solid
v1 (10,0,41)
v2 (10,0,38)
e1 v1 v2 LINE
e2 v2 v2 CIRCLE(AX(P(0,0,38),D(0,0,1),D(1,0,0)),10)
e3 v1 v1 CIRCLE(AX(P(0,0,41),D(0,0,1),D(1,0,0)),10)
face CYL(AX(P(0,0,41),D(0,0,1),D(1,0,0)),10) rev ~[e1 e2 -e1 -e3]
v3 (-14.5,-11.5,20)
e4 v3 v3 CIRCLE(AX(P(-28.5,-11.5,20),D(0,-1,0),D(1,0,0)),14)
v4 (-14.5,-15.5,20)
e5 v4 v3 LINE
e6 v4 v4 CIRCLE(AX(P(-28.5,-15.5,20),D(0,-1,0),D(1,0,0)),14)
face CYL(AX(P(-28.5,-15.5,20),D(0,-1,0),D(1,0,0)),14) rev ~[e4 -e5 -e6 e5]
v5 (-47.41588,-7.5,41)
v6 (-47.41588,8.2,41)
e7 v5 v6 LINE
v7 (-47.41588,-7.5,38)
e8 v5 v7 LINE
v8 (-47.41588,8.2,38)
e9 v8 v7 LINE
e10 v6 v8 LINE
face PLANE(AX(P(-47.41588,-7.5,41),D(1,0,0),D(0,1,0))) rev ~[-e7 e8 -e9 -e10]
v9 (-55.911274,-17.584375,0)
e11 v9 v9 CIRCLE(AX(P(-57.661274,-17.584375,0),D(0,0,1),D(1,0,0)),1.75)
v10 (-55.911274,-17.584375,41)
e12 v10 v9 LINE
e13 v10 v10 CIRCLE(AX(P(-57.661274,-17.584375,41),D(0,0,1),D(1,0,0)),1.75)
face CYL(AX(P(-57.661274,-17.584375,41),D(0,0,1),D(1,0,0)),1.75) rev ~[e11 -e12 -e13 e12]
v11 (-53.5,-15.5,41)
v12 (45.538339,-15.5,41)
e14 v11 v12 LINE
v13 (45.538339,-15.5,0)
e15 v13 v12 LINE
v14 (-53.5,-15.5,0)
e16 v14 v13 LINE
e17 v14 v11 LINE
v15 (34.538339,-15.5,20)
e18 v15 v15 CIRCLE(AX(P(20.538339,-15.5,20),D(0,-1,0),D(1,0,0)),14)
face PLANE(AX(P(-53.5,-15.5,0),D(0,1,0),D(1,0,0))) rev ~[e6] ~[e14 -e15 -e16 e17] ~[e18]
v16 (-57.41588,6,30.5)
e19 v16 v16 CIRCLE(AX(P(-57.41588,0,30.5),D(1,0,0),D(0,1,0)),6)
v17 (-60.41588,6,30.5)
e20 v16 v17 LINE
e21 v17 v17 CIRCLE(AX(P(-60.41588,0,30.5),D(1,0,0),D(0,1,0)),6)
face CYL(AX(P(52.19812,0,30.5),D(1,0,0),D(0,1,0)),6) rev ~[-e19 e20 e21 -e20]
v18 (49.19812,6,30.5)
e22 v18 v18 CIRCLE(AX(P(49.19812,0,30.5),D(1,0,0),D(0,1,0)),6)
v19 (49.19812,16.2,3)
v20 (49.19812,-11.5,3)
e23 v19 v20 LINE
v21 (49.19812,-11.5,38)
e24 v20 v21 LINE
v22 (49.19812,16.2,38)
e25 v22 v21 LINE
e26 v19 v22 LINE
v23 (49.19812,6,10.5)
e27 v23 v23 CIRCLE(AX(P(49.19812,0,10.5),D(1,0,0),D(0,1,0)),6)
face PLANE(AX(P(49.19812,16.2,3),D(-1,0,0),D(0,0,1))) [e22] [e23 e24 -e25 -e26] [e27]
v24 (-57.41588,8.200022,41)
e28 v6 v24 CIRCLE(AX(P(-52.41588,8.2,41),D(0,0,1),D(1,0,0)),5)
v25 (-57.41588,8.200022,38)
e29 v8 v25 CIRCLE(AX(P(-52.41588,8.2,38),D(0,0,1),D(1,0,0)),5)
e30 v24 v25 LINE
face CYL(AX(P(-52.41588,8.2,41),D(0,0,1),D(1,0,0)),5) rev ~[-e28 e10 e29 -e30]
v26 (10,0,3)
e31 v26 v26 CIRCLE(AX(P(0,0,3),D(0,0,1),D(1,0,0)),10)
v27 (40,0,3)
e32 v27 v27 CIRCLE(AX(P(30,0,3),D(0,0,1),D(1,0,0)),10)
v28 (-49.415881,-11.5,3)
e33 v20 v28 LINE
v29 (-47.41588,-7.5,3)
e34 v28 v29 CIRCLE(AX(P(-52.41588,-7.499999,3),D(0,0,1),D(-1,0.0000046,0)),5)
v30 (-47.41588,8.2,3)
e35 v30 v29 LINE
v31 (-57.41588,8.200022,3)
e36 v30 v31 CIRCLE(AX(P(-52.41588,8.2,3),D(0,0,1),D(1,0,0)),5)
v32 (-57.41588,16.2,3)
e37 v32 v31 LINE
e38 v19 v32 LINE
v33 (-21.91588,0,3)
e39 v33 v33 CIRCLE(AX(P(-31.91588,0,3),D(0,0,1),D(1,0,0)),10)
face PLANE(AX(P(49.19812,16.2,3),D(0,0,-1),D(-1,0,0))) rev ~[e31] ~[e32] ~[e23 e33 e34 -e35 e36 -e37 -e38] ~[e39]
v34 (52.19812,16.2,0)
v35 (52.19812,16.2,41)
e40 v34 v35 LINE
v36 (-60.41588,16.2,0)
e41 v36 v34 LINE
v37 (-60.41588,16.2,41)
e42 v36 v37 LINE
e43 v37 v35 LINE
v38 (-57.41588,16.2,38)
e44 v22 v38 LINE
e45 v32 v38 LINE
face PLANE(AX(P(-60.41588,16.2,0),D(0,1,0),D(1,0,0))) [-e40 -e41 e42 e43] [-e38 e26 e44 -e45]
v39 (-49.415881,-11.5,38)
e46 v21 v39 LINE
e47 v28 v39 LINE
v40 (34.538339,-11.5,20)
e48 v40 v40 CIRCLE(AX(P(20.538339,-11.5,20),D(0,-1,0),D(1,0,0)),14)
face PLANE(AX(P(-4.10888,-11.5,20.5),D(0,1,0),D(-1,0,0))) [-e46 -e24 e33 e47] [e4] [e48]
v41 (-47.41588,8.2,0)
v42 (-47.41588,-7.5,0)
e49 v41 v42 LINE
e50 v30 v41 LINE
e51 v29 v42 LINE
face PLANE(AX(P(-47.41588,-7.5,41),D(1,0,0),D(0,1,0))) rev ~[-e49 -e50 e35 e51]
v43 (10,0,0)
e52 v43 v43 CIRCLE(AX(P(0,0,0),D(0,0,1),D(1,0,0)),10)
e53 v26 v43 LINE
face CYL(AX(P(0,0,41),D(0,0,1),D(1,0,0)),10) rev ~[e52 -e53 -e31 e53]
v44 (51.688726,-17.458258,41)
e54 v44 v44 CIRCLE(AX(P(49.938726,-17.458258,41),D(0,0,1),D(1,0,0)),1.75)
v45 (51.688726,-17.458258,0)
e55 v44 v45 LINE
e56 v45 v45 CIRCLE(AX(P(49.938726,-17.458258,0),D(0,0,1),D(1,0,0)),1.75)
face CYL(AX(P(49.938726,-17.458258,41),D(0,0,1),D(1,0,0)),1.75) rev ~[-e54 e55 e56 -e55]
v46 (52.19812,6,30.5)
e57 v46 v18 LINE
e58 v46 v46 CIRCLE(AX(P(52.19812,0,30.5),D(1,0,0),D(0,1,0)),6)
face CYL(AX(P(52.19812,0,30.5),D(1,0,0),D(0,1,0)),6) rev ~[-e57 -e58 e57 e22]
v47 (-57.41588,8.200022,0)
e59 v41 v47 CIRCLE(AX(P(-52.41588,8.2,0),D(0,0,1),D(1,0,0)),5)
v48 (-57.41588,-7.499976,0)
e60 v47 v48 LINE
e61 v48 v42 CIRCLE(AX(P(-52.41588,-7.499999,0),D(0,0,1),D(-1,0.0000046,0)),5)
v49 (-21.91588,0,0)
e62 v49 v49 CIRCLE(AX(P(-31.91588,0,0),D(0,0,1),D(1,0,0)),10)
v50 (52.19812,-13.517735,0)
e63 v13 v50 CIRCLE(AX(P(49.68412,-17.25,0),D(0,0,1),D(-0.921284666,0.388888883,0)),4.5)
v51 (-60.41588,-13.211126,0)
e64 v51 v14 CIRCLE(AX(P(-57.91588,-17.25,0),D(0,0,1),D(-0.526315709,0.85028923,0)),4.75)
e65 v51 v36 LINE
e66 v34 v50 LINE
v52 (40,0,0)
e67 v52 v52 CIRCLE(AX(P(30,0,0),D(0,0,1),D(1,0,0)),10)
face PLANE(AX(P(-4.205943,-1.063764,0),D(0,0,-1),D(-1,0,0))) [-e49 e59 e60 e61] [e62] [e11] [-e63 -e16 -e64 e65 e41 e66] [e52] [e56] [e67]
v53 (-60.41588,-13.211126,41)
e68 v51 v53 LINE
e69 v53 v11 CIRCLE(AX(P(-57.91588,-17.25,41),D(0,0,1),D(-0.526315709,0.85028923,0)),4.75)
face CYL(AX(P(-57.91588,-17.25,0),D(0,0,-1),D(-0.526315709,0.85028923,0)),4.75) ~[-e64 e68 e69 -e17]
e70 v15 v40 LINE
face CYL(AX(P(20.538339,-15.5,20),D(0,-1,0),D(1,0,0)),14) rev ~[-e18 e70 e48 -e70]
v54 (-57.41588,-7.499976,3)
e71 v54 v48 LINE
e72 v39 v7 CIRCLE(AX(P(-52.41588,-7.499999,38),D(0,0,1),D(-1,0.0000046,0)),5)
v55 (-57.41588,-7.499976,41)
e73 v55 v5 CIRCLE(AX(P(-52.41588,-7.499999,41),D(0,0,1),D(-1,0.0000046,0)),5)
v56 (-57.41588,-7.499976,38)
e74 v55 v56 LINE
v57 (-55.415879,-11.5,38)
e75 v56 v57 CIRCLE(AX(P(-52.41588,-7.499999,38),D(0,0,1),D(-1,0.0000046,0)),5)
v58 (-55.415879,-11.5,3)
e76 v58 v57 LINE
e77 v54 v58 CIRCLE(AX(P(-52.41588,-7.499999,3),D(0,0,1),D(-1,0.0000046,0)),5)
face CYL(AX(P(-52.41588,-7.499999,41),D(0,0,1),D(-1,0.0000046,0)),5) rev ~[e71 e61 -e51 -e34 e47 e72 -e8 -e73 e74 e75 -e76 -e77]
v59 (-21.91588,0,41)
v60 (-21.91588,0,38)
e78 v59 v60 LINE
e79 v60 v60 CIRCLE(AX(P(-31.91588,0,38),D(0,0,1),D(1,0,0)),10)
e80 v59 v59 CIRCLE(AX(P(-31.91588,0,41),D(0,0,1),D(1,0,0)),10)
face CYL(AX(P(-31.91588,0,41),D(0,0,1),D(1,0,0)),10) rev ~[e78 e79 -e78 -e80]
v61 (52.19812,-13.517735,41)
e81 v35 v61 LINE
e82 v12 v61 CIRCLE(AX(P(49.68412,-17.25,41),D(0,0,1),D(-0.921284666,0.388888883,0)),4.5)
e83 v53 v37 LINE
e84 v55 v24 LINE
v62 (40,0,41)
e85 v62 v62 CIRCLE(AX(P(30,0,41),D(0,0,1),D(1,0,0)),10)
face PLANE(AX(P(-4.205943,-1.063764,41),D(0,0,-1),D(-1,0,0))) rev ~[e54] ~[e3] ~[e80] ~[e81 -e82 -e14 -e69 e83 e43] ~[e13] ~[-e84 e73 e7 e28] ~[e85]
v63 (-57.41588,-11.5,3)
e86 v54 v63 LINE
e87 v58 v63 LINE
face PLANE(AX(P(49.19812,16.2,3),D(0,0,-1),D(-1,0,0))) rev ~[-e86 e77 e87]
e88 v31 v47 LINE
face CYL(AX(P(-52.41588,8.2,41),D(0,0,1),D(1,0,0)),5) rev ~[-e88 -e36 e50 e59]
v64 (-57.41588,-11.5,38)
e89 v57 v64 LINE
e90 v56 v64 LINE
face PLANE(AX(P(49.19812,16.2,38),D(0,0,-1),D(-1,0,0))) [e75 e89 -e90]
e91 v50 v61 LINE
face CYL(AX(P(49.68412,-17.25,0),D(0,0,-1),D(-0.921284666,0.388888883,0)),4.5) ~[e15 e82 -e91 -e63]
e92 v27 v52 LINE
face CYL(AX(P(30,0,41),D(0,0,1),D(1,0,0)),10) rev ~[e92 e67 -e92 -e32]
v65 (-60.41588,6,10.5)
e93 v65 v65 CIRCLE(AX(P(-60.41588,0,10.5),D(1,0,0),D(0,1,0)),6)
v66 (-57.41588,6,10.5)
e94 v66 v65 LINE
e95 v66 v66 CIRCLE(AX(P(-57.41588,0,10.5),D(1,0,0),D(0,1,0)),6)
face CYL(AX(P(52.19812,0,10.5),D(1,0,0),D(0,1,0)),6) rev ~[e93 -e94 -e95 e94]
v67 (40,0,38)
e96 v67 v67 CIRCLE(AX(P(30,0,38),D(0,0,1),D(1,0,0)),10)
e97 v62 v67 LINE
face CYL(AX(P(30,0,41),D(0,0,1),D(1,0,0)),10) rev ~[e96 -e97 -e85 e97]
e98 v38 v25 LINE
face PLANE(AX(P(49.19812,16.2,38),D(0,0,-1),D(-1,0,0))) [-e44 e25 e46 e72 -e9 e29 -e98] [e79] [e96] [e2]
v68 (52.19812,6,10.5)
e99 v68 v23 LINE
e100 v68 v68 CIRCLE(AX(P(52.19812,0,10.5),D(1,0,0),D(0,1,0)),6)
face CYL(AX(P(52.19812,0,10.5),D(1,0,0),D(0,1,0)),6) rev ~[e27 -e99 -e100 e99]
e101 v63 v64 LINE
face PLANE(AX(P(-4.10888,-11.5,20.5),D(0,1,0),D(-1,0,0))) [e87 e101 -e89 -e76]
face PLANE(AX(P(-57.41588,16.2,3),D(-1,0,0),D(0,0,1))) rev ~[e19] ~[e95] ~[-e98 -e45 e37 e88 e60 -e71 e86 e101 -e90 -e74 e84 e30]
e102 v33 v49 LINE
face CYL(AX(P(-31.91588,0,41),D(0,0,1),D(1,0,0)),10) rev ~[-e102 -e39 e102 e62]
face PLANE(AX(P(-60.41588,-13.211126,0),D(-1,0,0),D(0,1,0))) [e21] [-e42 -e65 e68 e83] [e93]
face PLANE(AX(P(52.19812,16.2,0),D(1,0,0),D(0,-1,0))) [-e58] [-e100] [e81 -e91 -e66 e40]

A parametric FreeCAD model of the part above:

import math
import FreeCAD as App
import Part
import Sketcher


def add_polygon(sketch, points):
    """Adds a closed chain of lines whose ends are joined by coincident constraints."""
    first, n = sketch.GeometryCount, len(points)
    for a, b in zip(points, points[1:] + points[:1]):
        sketch.addGeometry(Part.LineSegment(App.Vector(*a, 0), App.Vector(*b, 0)), False)
    for i in range(n):
        sketch.addConstraint(Sketcher.Constraint("Coincident", first + i, 2, first + (i + 1) % n, 1))

doc = App.newDocument("Part")
body = doc.addObject("PartDesign::Body", "Body")

# Sketch on XY plane
sketch1 = body.newObject("Sketcher::SketchObject", "Sketch")
sketch1.AttachmentSupport = (doc.getObject("XY_Plane"), [""])
sketch1.MapMode = "FlatFace"
sketch1.addGeometry([
    Part.LineSegment(App.Vector(52.2, 16.2, 0), App.Vector(-60.4, 16.2, 0)),  # 0
    Part.LineSegment(App.Vector(-60.4, 16.2, 0), App.Vector(-60.4, -13.2, 0)),  # 1
    Part.ArcOfCircle(Part.Circle(App.Vector(-57.9, -17.2, 0), App.Vector(0, 0, 1), 4.7), math.radians(122), math.radians(382)),  # 2
    Part.LineSegment(App.Vector(-53.5, -15.5, 0), App.Vector(45.5, -15.5, 0)),  # 3
    Part.ArcOfCircle(Part.Circle(App.Vector(49.7, -17.2, 0), App.Vector(0, 0, 1), 4.5), math.radians(157), math.radians(416)),  # 4
    Part.LineSegment(App.Vector(52.2, -13.5, 0), App.Vector(52.2, 16.2, 0)),  # 5
], False)
sketch1.addConstraint([
    Sketcher.Constraint("Coincident", 0, 2, 1, 1),
    Sketcher.Constraint("Coincident", 1, 2, 2, 1),
    Sketcher.Constraint("Coincident", 2, 2, 3, 1),
    Sketcher.Constraint("Coincident", 3, 2, 4, 1),
    Sketcher.Constraint("Coincident", 4, 2, 5, 1),
    Sketcher.Constraint("Coincident", 5, 2, 0, 1),
    Sketcher.Constraint("Horizontal", 0),
    Sketcher.Constraint("Vertical", 1),
    Sketcher.Constraint("Horizontal", 3),
    Sketcher.Constraint("Vertical", 5),
    Sketcher.Constraint("Horizontal", 2, 3, 4, 3),
    Sketcher.Constraint("Radius", 4, 4.5),
    Sketcher.Constraint("Radius", 2, 4.75),
    Sketcher.Constraint("DistanceY", -1, 1, 0, 2, 16.2),
    Sketcher.Constraint("DistanceX", 2, 2, -1, 1, 53.5),
    Sketcher.Constraint("DistanceY", 2, 2, -1, 1, 15.5),
    Sketcher.Constraint("DistanceX", 2, 3, 4, 3, 107.6),
    Sketcher.Constraint("DistanceX", 0, 2, 2, 3, 2.5),
    Sketcher.Constraint("DistanceX", 0, 2, 0, 1, 112.614),
    Sketcher.Constraint("DistanceY", 2, 3, -1, 1, 17.25),
])
pad1 = body.newObject("PartDesign::Pad", "Pad")
pad1.Profile = sketch1
pad1.Length = 41

# Sketch on XZ plane
sketch2 = body.newObject("Sketcher::SketchObject", "Sketch001")
sketch2.AttachmentSupport = (doc.getObject("XZ_Plane"), [""])
sketch2.MapMode = "FlatFace"
sketch2.AttachmentOffset = App.Placement(App.Vector(0, 0, -16.2), App.Rotation())
add_polygon(sketch2, [(49, 38), (49, 3), (-57, 3), (-57, 38)])  # lines 0-3
sketch2.addConstraint([
    Sketcher.Constraint("Vertical", 0),
    Sketcher.Constraint("Horizontal", 1),
    Sketcher.Constraint("Vertical", 2),
    Sketcher.Constraint("Horizontal", 3),
    Sketcher.Constraint("DistanceY", 0, 2, 0, 1, 35.0),
    Sketcher.Constraint("DistanceY", -1, 1, 0, 2, 3.0),
    Sketcher.Constraint("DistanceX", 1, 2, 1, 1, 106.614),
    Sketcher.Constraint("DistanceX", -1, 1, 0, 2, 49.19812),
])
pocket1 = body.newObject("PartDesign::Pocket", "Pocket")
pocket1.Profile = sketch2
pocket1.Length = 27.7
pocket1.Reversed = True

# Sketch on XY plane
sketch3 = body.newObject("Sketcher::SketchObject", "Sketch002")
sketch3.AttachmentSupport = (doc.getObject("XY_Plane"), [""])
sketch3.MapMode = "FlatFace"
sketch3.AttachmentOffset = App.Placement(App.Vector(0, 0, 41), App.Rotation())
sketch3.addGeometry([
    Part.Circle(App.Vector(-31.9, 0, 0), App.Vector(0, 0, 1), 10),  # 0
    Part.Circle(App.Vector(0, 0, 0), App.Vector(0, 0, 1), 10),  # 1
    Part.Circle(App.Vector(30, 0, 0), App.Vector(0, 0, 1), 10),  # 2
    Part.Circle(App.Vector(49.9, -17.5, 0), App.Vector(0, 0, 1), 1.8),  # 3
    Part.Circle(App.Vector(-57.7, -17.6, 0), App.Vector(0, 0, 1), 1.8),  # 4
    Part.ArcOfCircle(Part.Circle(App.Vector(-52.4, -7.5, 0), App.Vector(0, 0, 1), 5), math.radians(180), math.radians(360)),  # 5
    Part.LineSegment(App.Vector(-47.4, -7.5, 0), App.Vector(-47.4, 8.2, 0)),  # 6
    Part.ArcOfCircle(Part.Circle(App.Vector(-52.4, 8.2, 0), App.Vector(0, 0, 1), 5), math.radians(0), math.radians(180)),  # 7
    Part.LineSegment(App.Vector(-57.4, 8.2, 0), App.Vector(-57.4, -7.5, 0)),  # 8
], False)
sketch3.addConstraint([
    Sketcher.Constraint("Tangent", 5, 2, 6, 1),
    Sketcher.Constraint("Tangent", 6, 2, 7, 1),
    Sketcher.Constraint("Coincident", 7, 2, 8, 1),
    Sketcher.Constraint("Coincident", 8, 2, 5, 1),
    Sketcher.Constraint("Vertical", 6),
    Sketcher.Constraint("Vertical", 8),
    Sketcher.Constraint("Coincident", 1, 3, -1, 1),
    Sketcher.Constraint("Equal", 0, 1),
    Sketcher.Constraint("Equal", 1, 2),
    Sketcher.Constraint("Equal", 3, 4),
    Sketcher.Constraint("PointOnObject", 0, 3, -1),
    Sketcher.Constraint("PointOnObject", 2, 3, -1),
    Sketcher.Constraint("Equal", 6, 8),
    Sketcher.Constraint("Diameter", 0, 20.0),
    Sketcher.Constraint("Radius", 5, 5.0),
    Sketcher.Constraint("Diameter", 3, 3.5),
    Sketcher.Constraint("DistanceY", 6, 1, 6, 2, 15.7),
    Sketcher.Constraint("DistanceX", -1, 1, 2, 3, 30.0),
    Sketcher.Constraint("DistanceY", 5, 3, -1, 1, 7.499999),
    Sketcher.Constraint("DistanceX", 4, 3, 3, 3, 107.6),
    Sketcher.Constraint("DistanceX", 5, 3, 0, 3, 20.5),
    Sketcher.Constraint("DistanceY", 4, 3, 8, 2, 10.084399),
    Sketcher.Constraint("DistanceX", 0, 3, -1, 1, 31.91588),
    Sketcher.Constraint("DistanceY", 3, 3, -1, 1, 17.458258),
    Sketcher.Constraint("DistanceY", -1, 1, 7, 2, 8.200022),
    Sketcher.Constraint("DistanceX", -1, 1, 3, 3, 49.938726),
])
pocket2 = body.newObject("PartDesign::Pocket", "Pocket001")
pocket2.Profile = sketch3
pocket2.Type = "ThroughAll"

# Sketch on XZ plane
sketch4 = body.newObject("Sketcher::SketchObject", "Sketch003")
sketch4.AttachmentSupport = (doc.getObject("XZ_Plane"), [""])
sketch4.MapMode = "FlatFace"
sketch4.AttachmentOffset = App.Placement(App.Vector(0, 0, 15.5), App.Rotation())
sketch4.addGeometry([
    Part.Circle(App.Vector(-28, 20, 0), App.Vector(0, 0, 1), 14),
    Part.Circle(App.Vector(21, 20, 0), App.Vector(0, 0, 1), 14),
], False)
sketch4.addConstraint([
    Sketcher.Constraint("Equal", 0, 1),
    Sketcher.Constraint("Horizontal", 0, 3, 1, 3),
    Sketcher.Constraint("Diameter", 0, 28.0),
    Sketcher.Constraint("DistanceY", -1, 1, 0, 3, 20.0),
    Sketcher.Constraint("DistanceX", 0, 3, -1, 1, 28.5),
    Sketcher.Constraint("DistanceX", -1, 1, 1, 3, 20.538339),
])
pocket3 = body.newObject("PartDesign::Pocket", "Pocket002")
pocket3.Profile = sketch4
pocket3.Type = "ThroughAll"

# Sketch on YZ plane
sketch5 = body.newObject("Sketcher::SketchObject", "Sketch004")
sketch5.AttachmentSupport = (doc.getObject("YZ_Plane"), [""])
sketch5.MapMode = "FlatFace"
sketch5.AttachmentOffset = App.Placement(App.Vector(0, 0, 52.19812), App.Rotation())
sketch5.addGeometry([
    Part.Circle(App.Vector(0, 30, 0), App.Vector(0, 0, 1), 6),
    Part.Circle(App.Vector(0, 10, 0), App.Vector(0, 0, 1), 6),
], False)
sketch5.addConstraint([
    Sketcher.Constraint("Equal", 0, 1),
    Sketcher.Constraint("PointOnObject", 0, 3, -2),
    Sketcher.Constraint("PointOnObject", 1, 3, -2),
    Sketcher.Constraint("Diameter", 0, 12.0),
    Sketcher.Constraint("DistanceY", 1, 3, 0, 3, 20.0),
    Sketcher.Constraint("DistanceY", -1, 1, 0, 3, 30.5),
])
pocket4 = body.newObject("PartDesign::Pocket", "Pocket003")
pocket4.Profile = sketch5
pocket4.Type = "ThroughAll"

doc.recompute()
